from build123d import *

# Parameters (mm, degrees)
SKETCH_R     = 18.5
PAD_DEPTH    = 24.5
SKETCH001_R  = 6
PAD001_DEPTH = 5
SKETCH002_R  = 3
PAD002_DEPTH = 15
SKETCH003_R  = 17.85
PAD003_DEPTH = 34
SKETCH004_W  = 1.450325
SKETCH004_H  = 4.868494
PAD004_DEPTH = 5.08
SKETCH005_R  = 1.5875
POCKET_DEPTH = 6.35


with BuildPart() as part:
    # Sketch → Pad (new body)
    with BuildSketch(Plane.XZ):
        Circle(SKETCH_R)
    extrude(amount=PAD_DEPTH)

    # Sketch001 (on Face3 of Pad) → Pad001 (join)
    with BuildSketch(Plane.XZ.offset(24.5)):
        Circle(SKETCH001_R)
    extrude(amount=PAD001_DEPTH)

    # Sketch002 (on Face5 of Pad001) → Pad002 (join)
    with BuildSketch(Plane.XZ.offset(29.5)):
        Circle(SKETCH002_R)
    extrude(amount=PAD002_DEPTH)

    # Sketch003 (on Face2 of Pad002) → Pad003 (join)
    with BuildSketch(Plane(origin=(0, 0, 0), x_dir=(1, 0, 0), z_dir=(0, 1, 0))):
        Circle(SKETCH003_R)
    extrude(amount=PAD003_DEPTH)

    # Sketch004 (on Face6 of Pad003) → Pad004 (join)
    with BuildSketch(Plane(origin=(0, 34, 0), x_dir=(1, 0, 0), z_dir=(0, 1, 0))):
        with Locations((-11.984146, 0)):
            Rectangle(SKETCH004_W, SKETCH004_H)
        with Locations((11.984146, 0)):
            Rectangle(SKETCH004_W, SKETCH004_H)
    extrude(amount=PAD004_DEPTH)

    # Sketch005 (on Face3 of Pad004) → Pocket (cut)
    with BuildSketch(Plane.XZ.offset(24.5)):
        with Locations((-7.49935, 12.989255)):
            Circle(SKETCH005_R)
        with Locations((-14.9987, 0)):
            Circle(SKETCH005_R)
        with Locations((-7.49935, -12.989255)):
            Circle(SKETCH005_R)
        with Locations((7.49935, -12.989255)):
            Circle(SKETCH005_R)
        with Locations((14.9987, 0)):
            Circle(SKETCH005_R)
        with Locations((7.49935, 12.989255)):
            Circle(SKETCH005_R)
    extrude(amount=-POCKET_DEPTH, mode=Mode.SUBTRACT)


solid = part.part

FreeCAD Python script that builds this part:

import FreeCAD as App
import Part
import Sketcher
Q = App.Units.Quantity


def add_polygon(sketch, points):
    """Adds a closed chain of lines whose ends are joined by coincident constraints."""
    first, n = sketch.GeometryCount, len(points)
    for a, b in zip(points, points[1:] + points[:1]):
        sketch.addGeometry(Part.LineSegment(App.Vector(*a, 0), App.Vector(*b, 0)), False)
    for i in range(n):
        sketch.addConstraint(Sketcher.Constraint("Coincident", first + i, 2, first + (i + 1) % n, 1))

doc = App.newDocument("Part")
body = doc.addObject("PartDesign::Body", "Body")

sketch1 = body.newObject("Sketcher::SketchObject", "Sketch")
sketch1.AttachmentSupport = (doc.getObject("XZ_Plane"), [""])
sketch1.MapMode = "FlatFace"
sketch1.addGeometry(Part.Circle(App.Vector(0, 0, 0), App.Vector(0, 0, 1), 18), False)
sketch1.addConstraint(Sketcher.Constraint("Coincident", 0, 3, -1, 1))
sketch1.addConstraint(Sketcher.Constraint("Diameter", 0, Q("37 mm")))
pad1 = body.newObject("PartDesign::Pad", "Pad")
pad1.Profile = sketch1
pad1.Length = 24.5

sketch2 = body.newObject("Sketcher::SketchObject", "Sketch001")
sketch2.AttachmentSupport = (doc.getObject("XZ_Plane"), [""])
sketch2.MapMode = "FlatFace"
sketch2.AttachmentOffset = App.Placement(App.Vector(0, 0, 24.5), App.Rotation())
sketch2.addGeometry(Part.Circle(App.Vector(0, 0, 0), App.Vector(0, 0, 1), 6), False)
sketch2.addConstraint(Sketcher.Constraint("Coincident", 0, 3, -1, 1))
sketch2.addConstraint(Sketcher.Constraint("Diameter", 0, Q("12 mm")))
pad2 = body.newObject("PartDesign::Pad", "Pad001")
pad2.Profile = sketch2
pad2.Length = 5

sketch3 = body.newObject("Sketcher::SketchObject", "Sketch002")
sketch3.AttachmentSupport = (doc.getObject("XZ_Plane"), [""])
sketch3.MapMode = "FlatFace"
sketch3.AttachmentOffset = App.Placement(App.Vector(0, 0, 29.5), App.Rotation())
sketch3.addGeometry(Part.Circle(App.Vector(0, 0, 0), App.Vector(0, 0, 1), 3), False)
sketch3.addConstraint(Sketcher.Constraint("Coincident", 0, 3, -1, 1))
sketch3.addConstraint(Sketcher.Constraint("Diameter", 0, Q("6 mm")))
pad3 = body.newObject("PartDesign::Pad", "Pad002")
pad3.Profile = sketch3
pad3.Length = 15

sketch4 = body.newObject("Sketcher::SketchObject", "Sketch003")
sketch4.AttachmentSupport = (doc.getObject("XZ_Plane"), [""])
sketch4.MapMode = "FlatFace"
sketch4.addGeometry(Part.Circle(App.Vector(0, 0, 0), App.Vector(0, 0, 1), 18), False)
sketch4.addConstraint(Sketcher.Constraint("Coincident", 0, 3, -1, 1))
sketch4.addConstraint(Sketcher.Constraint("Diameter", 0, Q("35.7 mm")))
pad4 = body.newObject("PartDesign::Pad", "Pad003")
pad4.Profile = sketch4
pad4.Length = 34
pad4.Reversed = True

sketch5 = body.newObject("Sketcher::SketchObject", "Sketch004")
sketch5.AttachmentSupport = (doc.getObject("XZ_Plane"), [""])
sketch5.MapMode = "FlatFace"
sketch5.AttachmentOffset = App.Placement(App.Vector(0, 0, -34), App.Rotation())
add_polygon(sketch5, [(-12.7, -2.4), (-12.7, 2.4), (-11.3, 2.4), (-11.3, -2.4)])
add_polygon(sketch5, [(11.3, -2.4), (11.3, 2.4), (12.7, 2.4), (12.7, -2.4)])
sketch5.addConstraint(Sketcher.Constraint("Vertical", 0))
sketch5.addConstraint(Sketcher.Constraint("Horizontal", 1))
sketch5.addConstraint(Sketcher.Constraint("Vertical", 2))
sketch5.addConstraint(Sketcher.Constraint("Horizontal", 3))
sketch5.addConstraint(Sketcher.Constraint("Vertical", 4))
sketch5.addConstraint(Sketcher.Constraint("Horizontal", 5))
sketch5.addConstraint(Sketcher.Constraint("Vertical", 6))
sketch5.addConstraint(Sketcher.Constraint("Horizontal", 7))
sketch5.addConstraint(Sketcher.Constraint("Symmetric", 2, 2, 4, 2, -1, 1))
sketch5.addConstraint(Sketcher.Constraint("Symmetric", 0, 2, 6, 2, -1, 1))
sketch5.addConstraint(Sketcher.Constraint("Horizontal", 1, 2, 4, 2))
sketch5.addConstraint(Sketcher.Constraint("DistanceX", 1, 1, 1, 2, Q("1.450325 mm")))
sketch5.addConstraint(Sketcher.Constraint("DistanceY", 0, 1, 0, 2, Q("4.868494 mm")))
sketch5.addConstraint(Sketcher.Constraint("DistanceX", 0, 2, -1, 1, Q("12.709309 mm")))
pad5 = body.newObject("PartDesign::Pad", "Pad004")
pad5.Profile = sketch5
pad5.Length = 5.08
pad5.Reversed = True

sketch6 = body.newObject("Sketcher::SketchObject", "Sketch005")
sketch6.AttachmentSupport = (doc.getObject("XZ_Plane"), [""])
sketch6.MapMode = "FlatFace"
sketch6.AttachmentOffset = App.Placement(App.Vector(0, 0, 24.5), App.Rotation())
sketch6.addGeometry(Part.Circle(App.Vector(-7.5, 13, 0), App.Vector(0, 0, 1), 1.6), False)
sketch6.addGeometry(Part.Circle(App.Vector(-15, 0, 0), App.Vector(0, 0, 1), 1.6), False)
sketch6.addGeometry(Part.Circle(App.Vector(-7.5, -13, 0), App.Vector(0, 0, 1), 1.6), False)
sketch6.addGeometry(Part.Circle(App.Vector(7.5, -13, 0), App.Vector(0, 0, 1), 1.6), False)
sketch6.addGeometry(Part.Circle(App.Vector(15, 0, 0), App.Vector(0, 0, 1), 1.6), False)
sketch6.addGeometry(Part.Circle(App.Vector(7.5, 13, 0), App.Vector(0, 0, 1), 1.6), False)
sketch6.addConstraint(Sketcher.Constraint("Equal", 0, 1))
sketch6.addConstraint(Sketcher.Constraint("Equal", 1, 2))
sketch6.addConstraint(Sketcher.Constraint("Equal", 2, 3))
sketch6.addConstraint(Sketcher.Constraint("Equal", 3, 4))
sketch6.addConstraint(Sketcher.Constraint("Equal", 4, 5))
sketch6.addConstraint(Sketcher.Constraint("Symmetric", 0, 3, 3, 3, -1, 1))
sketch6.addConstraint(Sketcher.Constraint("Symmetric", 1, 3, 4, 3, -1, 1))
sketch6.addConstraint(Sketcher.Constraint("Symmetric", 2, 3, 5, 3, -1, 1))
sketch6.addConstraint(Sketcher.Constraint("Symmetric", 2, 3, 3, 3, -2))
sketch6.addConstraint(Sketcher.Constraint("PointOnObject", 1, 3, -1))
sketch6.addConstraint(Sketcher.Constraint("Diameter", 0, Q("3.175 mm")))
sketch6.addConstraint(Sketcher.Constraint("DistanceX", 1, 3, -1, 1, Q("14.9987 mm")))
sketch6.addConstraint(Sketcher.Constraint("DistanceX", 2, 3, 3, 3, Q("14.9987 mm")))
sketch6.addConstraint(Sketcher.Constraint("DistanceY", 2, 3, 0, 3, Q("25.97851 mm")))
pocket1 = body.newObject("PartDesign::Pocket", "Pocket")
pocket1.Profile = sketch6
pocket1.Length = 6.35

doc.recompute()
